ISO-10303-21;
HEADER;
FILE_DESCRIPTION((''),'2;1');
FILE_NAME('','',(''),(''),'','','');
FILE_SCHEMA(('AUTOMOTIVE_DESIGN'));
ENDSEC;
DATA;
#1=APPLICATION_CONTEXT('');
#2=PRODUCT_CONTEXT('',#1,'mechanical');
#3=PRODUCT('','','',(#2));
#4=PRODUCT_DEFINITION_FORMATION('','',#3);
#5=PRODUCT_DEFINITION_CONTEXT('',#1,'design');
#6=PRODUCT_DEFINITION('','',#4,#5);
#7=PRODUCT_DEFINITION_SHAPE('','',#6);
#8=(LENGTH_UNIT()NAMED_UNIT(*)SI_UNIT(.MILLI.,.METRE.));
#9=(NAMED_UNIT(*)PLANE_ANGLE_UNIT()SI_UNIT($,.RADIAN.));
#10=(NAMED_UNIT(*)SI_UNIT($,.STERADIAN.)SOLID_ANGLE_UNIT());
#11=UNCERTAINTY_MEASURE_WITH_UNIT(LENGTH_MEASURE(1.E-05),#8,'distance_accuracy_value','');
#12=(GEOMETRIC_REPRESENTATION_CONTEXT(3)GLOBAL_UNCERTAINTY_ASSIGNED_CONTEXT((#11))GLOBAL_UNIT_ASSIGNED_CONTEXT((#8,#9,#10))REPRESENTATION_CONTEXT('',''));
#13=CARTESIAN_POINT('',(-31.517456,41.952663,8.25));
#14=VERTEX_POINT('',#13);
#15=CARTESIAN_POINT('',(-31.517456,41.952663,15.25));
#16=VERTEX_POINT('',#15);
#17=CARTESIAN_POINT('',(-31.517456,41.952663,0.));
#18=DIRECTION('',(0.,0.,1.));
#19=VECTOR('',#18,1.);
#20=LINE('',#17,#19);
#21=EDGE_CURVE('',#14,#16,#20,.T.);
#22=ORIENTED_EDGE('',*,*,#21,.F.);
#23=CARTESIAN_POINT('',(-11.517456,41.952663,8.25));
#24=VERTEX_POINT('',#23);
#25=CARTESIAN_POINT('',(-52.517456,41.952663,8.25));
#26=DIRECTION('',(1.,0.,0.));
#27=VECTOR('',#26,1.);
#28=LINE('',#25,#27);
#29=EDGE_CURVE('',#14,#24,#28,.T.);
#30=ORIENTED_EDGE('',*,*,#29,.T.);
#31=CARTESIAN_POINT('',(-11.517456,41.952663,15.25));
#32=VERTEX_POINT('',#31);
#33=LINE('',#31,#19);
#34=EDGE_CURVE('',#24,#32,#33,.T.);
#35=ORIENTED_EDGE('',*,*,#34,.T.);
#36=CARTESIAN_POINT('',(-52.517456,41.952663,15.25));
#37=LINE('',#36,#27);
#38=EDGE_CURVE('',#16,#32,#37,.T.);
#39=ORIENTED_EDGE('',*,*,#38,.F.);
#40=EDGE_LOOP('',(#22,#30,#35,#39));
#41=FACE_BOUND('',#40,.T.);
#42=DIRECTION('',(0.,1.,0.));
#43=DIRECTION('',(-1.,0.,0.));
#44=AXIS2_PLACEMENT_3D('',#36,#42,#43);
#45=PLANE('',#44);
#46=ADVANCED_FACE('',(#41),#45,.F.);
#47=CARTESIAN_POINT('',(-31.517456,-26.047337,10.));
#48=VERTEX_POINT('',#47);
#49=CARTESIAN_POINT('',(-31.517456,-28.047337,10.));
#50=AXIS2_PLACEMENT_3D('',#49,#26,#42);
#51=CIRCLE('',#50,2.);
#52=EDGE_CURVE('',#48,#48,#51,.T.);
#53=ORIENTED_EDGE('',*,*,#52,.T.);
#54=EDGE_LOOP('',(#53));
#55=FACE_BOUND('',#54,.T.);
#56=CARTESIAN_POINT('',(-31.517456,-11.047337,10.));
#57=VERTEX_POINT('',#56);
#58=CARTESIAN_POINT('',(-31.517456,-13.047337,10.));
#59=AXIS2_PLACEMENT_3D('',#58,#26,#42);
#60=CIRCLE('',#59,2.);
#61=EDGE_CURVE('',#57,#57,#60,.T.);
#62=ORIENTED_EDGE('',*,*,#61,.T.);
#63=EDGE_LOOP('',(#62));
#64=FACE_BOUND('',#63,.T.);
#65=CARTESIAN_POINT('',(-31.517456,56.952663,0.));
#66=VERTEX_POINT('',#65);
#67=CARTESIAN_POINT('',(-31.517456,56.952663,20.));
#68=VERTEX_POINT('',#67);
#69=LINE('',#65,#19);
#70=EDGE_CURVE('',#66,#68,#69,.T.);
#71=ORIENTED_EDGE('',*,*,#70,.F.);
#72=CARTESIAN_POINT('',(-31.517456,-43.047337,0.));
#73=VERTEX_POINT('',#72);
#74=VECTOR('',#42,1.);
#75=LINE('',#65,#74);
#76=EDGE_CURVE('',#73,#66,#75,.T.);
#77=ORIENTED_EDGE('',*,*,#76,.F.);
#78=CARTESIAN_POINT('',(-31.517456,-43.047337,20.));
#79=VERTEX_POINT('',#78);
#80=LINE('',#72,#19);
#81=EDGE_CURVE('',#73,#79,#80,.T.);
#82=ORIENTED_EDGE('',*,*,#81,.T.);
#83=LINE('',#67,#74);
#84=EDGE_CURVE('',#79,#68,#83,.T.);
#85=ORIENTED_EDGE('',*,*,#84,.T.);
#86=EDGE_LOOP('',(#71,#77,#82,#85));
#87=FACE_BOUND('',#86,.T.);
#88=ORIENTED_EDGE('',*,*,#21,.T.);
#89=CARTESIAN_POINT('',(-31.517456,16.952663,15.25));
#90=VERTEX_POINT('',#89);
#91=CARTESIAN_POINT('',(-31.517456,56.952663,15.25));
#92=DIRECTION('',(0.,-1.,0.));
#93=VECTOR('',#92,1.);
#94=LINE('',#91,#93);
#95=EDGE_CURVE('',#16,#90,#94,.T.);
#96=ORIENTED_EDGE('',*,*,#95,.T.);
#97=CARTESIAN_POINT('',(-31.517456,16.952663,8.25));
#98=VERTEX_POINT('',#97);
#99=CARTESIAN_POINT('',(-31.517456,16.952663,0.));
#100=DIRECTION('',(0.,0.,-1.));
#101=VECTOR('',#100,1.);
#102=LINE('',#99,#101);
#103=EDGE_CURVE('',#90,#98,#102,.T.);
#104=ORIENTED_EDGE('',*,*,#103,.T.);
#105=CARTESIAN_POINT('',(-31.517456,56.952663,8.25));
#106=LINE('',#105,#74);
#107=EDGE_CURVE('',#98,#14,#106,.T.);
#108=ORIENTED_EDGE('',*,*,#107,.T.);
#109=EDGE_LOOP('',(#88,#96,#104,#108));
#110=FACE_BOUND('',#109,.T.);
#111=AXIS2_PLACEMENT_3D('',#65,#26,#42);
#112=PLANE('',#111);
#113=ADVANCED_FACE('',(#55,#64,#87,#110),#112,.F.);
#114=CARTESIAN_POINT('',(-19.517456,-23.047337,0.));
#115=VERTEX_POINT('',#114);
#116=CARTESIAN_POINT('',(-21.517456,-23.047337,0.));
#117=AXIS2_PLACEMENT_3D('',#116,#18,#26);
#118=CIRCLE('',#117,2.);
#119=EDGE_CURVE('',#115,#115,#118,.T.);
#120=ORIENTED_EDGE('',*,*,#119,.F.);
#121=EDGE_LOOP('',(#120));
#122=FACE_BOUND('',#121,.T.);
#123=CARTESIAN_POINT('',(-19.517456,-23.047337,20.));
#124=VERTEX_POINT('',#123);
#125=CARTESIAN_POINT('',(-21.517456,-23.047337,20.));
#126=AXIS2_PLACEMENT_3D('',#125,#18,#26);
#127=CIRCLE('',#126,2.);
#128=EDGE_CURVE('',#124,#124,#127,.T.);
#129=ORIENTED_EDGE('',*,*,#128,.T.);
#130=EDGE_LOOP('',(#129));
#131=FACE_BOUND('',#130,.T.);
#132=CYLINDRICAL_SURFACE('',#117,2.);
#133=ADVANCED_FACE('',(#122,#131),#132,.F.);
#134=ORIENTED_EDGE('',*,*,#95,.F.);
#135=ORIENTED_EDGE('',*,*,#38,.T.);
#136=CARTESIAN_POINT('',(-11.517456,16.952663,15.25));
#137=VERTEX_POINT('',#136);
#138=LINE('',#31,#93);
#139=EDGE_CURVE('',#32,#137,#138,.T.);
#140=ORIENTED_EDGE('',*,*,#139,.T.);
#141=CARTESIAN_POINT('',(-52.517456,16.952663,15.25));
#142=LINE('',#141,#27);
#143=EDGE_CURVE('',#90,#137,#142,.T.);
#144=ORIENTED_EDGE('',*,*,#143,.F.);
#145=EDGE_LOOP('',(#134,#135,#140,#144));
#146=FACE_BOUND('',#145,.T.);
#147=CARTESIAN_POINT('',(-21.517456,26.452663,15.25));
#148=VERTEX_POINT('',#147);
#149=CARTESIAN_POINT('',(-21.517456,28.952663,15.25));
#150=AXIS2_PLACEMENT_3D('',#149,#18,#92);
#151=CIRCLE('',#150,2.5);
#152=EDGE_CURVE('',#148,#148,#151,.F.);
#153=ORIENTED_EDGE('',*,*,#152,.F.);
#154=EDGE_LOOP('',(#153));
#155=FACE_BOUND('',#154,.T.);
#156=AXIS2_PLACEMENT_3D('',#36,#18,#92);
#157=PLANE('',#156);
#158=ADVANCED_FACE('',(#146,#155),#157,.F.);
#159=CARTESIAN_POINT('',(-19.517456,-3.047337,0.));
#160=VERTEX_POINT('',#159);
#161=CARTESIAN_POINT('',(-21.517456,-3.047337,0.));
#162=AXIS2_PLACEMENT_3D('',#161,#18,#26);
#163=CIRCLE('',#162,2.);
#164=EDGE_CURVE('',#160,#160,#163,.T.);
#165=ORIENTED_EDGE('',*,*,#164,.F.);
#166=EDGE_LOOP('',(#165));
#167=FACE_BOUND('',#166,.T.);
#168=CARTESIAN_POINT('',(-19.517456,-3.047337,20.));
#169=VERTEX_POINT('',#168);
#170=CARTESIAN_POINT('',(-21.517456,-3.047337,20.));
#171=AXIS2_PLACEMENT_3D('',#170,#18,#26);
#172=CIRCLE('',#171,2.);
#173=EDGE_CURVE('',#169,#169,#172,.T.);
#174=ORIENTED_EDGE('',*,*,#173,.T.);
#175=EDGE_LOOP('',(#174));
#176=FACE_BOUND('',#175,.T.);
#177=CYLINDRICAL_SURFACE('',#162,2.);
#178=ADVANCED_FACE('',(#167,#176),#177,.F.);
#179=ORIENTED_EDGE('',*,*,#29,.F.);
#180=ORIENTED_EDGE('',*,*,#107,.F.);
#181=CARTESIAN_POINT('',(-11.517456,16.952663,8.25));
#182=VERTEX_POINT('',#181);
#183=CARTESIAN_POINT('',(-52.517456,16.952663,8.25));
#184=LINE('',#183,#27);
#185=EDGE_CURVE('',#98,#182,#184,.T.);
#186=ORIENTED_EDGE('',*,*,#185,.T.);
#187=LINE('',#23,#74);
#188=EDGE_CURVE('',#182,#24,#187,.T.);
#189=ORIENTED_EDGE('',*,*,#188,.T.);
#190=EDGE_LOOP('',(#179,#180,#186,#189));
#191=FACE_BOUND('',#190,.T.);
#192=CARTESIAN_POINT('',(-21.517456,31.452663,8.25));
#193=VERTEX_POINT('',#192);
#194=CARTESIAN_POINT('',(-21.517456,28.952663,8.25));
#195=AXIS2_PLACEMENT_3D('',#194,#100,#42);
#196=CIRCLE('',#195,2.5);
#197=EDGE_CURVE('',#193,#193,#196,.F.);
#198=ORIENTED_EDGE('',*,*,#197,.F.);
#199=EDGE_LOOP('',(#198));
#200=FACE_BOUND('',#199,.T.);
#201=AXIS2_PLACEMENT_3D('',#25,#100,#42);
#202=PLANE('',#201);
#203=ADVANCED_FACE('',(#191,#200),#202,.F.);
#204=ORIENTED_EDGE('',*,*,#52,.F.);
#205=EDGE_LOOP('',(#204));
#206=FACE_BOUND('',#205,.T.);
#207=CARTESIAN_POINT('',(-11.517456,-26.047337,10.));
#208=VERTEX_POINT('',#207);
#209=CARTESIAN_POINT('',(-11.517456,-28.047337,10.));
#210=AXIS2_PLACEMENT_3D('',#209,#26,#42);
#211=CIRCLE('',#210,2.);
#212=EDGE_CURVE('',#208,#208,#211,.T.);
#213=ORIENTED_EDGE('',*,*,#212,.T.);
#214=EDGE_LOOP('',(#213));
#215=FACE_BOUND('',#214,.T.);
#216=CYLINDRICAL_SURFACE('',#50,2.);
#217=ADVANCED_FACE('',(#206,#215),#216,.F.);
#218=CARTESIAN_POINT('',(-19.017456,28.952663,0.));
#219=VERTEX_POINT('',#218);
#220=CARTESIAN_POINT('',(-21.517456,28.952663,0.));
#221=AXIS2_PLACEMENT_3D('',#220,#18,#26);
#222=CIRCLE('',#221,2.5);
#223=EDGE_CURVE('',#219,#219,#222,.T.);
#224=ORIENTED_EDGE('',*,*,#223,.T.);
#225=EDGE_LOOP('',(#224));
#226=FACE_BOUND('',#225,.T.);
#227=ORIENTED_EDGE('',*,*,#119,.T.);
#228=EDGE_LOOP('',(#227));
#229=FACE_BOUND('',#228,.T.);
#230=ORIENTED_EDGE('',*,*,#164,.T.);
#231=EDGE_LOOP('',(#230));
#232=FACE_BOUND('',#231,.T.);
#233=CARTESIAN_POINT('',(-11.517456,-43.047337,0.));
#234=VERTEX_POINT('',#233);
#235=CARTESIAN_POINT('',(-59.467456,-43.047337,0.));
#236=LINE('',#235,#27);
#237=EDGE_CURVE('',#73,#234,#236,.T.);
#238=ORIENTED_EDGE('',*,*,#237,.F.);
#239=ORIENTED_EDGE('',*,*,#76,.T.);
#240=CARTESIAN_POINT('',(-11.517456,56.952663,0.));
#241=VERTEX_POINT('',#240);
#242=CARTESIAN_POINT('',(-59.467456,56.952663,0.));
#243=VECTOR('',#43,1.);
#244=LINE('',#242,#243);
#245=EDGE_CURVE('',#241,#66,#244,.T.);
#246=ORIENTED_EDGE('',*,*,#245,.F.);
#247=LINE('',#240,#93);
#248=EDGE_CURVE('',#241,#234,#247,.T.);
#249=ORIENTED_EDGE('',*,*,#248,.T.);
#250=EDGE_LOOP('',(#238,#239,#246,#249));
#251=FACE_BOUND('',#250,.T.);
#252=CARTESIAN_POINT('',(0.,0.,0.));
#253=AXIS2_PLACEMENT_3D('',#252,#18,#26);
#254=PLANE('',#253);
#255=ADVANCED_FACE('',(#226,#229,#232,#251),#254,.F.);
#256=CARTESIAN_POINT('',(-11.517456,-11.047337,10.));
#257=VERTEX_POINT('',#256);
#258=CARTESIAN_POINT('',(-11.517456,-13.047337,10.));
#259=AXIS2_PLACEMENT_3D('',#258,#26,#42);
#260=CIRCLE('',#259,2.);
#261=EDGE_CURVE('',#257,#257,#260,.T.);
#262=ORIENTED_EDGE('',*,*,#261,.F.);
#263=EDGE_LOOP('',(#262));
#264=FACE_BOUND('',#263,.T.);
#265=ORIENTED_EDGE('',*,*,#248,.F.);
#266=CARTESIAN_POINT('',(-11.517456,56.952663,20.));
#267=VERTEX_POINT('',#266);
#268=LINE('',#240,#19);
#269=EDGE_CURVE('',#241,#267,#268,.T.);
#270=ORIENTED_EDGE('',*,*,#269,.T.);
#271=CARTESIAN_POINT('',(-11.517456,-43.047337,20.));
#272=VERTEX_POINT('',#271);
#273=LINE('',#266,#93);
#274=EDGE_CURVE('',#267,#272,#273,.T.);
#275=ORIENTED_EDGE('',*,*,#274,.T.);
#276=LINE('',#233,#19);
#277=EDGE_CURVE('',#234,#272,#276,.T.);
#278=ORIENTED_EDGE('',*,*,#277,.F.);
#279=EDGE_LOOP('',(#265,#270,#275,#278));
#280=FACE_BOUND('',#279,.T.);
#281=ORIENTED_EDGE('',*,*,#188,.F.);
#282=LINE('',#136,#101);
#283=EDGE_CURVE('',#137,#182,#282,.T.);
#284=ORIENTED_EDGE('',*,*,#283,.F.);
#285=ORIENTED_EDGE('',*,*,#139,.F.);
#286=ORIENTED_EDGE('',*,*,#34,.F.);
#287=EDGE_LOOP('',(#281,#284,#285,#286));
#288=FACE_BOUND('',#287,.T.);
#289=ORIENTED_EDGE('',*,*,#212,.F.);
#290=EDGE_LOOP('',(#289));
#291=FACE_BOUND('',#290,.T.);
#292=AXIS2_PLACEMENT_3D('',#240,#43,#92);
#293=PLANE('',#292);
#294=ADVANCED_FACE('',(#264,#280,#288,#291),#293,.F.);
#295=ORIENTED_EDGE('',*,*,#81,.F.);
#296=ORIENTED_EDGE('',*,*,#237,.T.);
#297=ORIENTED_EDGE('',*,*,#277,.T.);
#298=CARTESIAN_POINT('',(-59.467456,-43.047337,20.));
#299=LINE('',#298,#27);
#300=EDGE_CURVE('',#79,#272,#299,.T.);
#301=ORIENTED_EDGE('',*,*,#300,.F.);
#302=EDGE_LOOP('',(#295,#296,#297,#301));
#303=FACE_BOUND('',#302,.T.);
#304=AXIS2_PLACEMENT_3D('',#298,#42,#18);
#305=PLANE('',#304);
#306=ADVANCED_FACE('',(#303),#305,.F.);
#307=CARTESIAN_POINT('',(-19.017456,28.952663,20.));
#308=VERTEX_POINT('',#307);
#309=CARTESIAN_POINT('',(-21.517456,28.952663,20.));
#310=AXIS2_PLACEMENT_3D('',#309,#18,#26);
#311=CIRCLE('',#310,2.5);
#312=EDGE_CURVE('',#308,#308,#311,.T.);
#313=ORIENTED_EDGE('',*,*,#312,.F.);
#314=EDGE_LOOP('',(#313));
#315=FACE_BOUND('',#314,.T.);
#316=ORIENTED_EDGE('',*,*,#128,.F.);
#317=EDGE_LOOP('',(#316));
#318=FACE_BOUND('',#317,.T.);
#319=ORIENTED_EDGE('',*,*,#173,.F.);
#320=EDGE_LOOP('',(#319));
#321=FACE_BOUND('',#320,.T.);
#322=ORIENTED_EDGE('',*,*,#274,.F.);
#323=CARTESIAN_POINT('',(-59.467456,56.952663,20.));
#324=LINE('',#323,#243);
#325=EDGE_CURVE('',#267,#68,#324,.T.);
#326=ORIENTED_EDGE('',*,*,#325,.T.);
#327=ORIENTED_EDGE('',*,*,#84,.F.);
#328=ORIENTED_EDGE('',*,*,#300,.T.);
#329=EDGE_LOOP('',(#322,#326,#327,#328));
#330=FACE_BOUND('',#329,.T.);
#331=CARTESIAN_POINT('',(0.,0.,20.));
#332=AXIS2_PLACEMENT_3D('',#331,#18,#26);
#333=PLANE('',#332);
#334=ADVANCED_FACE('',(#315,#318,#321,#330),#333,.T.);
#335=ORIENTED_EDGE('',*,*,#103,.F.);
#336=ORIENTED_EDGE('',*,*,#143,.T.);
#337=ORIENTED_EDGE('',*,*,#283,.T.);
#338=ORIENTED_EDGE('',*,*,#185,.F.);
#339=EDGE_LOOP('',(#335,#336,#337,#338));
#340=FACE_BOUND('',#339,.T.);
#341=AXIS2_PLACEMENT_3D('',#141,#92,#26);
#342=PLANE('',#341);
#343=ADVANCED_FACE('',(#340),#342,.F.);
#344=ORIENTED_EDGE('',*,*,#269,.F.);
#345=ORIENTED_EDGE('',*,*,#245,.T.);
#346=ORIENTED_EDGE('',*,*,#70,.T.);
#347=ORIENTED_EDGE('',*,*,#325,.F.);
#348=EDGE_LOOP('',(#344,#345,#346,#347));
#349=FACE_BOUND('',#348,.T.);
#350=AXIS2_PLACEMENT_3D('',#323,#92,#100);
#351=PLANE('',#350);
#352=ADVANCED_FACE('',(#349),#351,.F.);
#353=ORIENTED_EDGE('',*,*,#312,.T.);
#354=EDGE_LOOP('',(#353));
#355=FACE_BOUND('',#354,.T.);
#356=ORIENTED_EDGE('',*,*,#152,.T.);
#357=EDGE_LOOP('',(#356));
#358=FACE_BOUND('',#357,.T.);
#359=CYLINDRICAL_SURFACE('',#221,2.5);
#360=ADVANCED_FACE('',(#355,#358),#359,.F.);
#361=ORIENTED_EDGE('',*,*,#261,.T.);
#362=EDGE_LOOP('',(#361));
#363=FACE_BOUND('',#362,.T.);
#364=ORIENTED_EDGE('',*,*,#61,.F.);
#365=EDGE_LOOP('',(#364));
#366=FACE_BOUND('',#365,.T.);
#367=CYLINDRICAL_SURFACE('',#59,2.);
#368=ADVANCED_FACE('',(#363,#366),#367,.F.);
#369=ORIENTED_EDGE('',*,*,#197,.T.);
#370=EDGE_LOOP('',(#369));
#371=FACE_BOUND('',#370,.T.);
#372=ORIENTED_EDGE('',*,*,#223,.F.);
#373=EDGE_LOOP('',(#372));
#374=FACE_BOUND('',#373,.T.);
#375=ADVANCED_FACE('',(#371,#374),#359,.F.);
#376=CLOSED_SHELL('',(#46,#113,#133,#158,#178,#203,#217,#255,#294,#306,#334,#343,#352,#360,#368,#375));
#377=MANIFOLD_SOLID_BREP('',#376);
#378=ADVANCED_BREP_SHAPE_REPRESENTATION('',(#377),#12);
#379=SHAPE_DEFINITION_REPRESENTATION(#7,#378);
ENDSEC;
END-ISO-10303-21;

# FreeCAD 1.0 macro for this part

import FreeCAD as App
import Part
import Sketcher
Q = App.Units.Quantity

doc = App.newDocument("Part")
body = doc.addObject("PartDesign::Body", "Body")

sketch1 = body.newObject("Sketcher::SketchObject", "Sketch")
sketch1.AttachmentSupport = (doc.getObject("XY_Plane"), [""])
sketch1.MapMode = "FlatFace"
sketch1.addGeometry([
    Part.LineSegment(App.Vector(-59, 57, 0), App.Vector(-59, -43, 0)),
    Part.LineSegment(App.Vector(-59, -43, 0), App.Vector(16, -43, 0)),
    Part.LineSegment(App.Vector(16, -43, 0), App.Vector(16, 57, 0)),
    Part.LineSegment(App.Vector(16, 57, 0), App.Vector(-59, 57, 0)),
], False)
sketch1.addConstraint([
    Sketcher.Constraint("Coincident", 0, 2, 1, 1),
    Sketcher.Constraint("Coincident", 1, 2, 2, 1),
    Sketcher.Constraint("Coincident", 2, 2, 3, 1),
    Sketcher.Constraint("Coincident", 3, 2, 0, 1),
    Sketcher.Constraint("Vertical", 0),
    Sketcher.Constraint("Horizontal", 1),
    Sketcher.Constraint("Vertical", 2),
    Sketcher.Constraint("Horizontal", 3),
    Sketcher.Constraint("DistanceY", 0, 2, 0, 1, Q("100 mm")),
    Sketcher.Constraint("DistanceX", 1, 1, 1, 2, Q("75.9 mm")),
    Sketcher.Constraint("DistanceX", 0, 2, -1, 1, Q("59.467456 mm")),
    Sketcher.Constraint("DistanceY", 0, 2, -1, 1, Q("43.047337 mm")),
])
pad1 = body.newObject("PartDesign::Pad", "Pad")
pad1.Profile = sketch1
pad1.Length = 20

sketch2 = body.newObject("Sketcher::SketchObject", "Sketch001")
sketch2.AttachmentSupport = (doc.getObject("XY_Plane"), [""])
sketch2.MapMode = "FlatFace"
sketch2.AttachmentOffset = App.Placement(App.Vector(0, 0, 20), App.Rotation())
sketch2.addGeometry(Part.Circle(App.Vector(-21.5, 29, 0), App.Vector(0, 0, 1), 2.5), False)
sketch2.addConstraint([
    Sketcher.Constraint("Diameter", 0, Q("5 mm")),
    Sketcher.Constraint("DistanceX", 0, 3, -1, 1, Q("21.517456 mm")),
    Sketcher.Constraint("DistanceY", -1, 1, 0, 3, Q("28.952663 mm")),
])
pocket1 = body.newObject("PartDesign::Pocket", "Pocket")
pocket1.Profile = sketch2
pocket1.Type = "ThroughAll"

sketch3 = body.newObject("Sketcher::SketchObject", "Sketch002")
sketch3.AttachmentSupport = (doc.getObject("XY_Plane"), [""])
sketch3.MapMode = "FlatFace"
sketch3.AttachmentOffset = App.Placement(App.Vector(0, 0, 20), App.Rotation())
sketch3.addGeometry([
    Part.LineSegment(App.Vector(-59, 57, 0), App.Vector(-59, -43, 0)),
    Part.LineSegment(App.Vector(-59, -43, 0), App.Vector(-32, -43, 0)),
    Part.LineSegment(App.Vector(-32, -43, 0), App.Vector(-32, 57, 0)),
    Part.LineSegment(App.Vector(-32, 57, 0), App.Vector(-59, 57, 0)),
    Part.LineSegment(App.Vector(-12, 57, 0), App.Vector(-12, -43, 0)),
    Part.LineSegment(App.Vector(-12, -43, 0), App.Vector(16, -43, 0)),
    Part.LineSegment(App.Vector(16, -43, 0), App.Vector(16, 57, 0)),
    Part.LineSegment(App.Vector(16, 57, 0), App.Vector(-12, 57, 0)),
], False)
sketch3.addConstraint([
    Sketcher.Constraint("Coincident", 0, 2, 1, 1),
    Sketcher.Constraint("Coincident", 1, 2, 2, 1),
    Sketcher.Constraint("Coincident", 2, 2, 3, 1),
    Sketcher.Constraint("Coincident", 3, 2, 0, 1),
    Sketcher.Constraint("Coincident", 4, 2, 5, 1),
    Sketcher.Constraint("Coincident", 5, 2, 6, 1),
    Sketcher.Constraint("Coincident", 6, 2, 7, 1),
    Sketcher.Constraint("Coincident", 7, 2, 4, 1),
    Sketcher.Constraint("Vertical", 0),
    Sketcher.Constraint("Horizontal", 1),
    Sketcher.Constraint("Vertical", 2),
    Sketcher.Constraint("Horizontal", 3),
    Sketcher.Constraint("Vertical", 4),
    Sketcher.Constraint("Horizontal", 5),
    Sketcher.Constraint("Vertical", 6),
    Sketcher.Constraint("Horizontal", 7),
    Sketcher.Constraint("Horizontal", 1, 2, 4, 2),
    Sketcher.Constraint("Horizontal", 3, 2, 6, 2),
    Sketcher.Constraint("Equal", 3, 5),
    Sketcher.Constraint("DistanceY", 0, 2, 0, 1, Q("100 mm")),
    Sketcher.Constraint("DistanceX", 1, 2, 4, 2, Q("20 mm")),
    Sketcher.Constraint("DistanceX", 1, 1, 1, 2, Q("27.95 mm")),
    Sketcher.Constraint("DistanceX", 0, 2, -1, 1, Q("59.467456 mm")),
    Sketcher.Constraint("DistanceY", 0, 2, -1, 1, Q("43.047337 mm")),
])
pocket2 = body.newObject("PartDesign::Pocket", "Pocket001")
pocket2.Profile = sketch3
pocket2.Type = "ThroughAll"

sketch4 = body.newObject("Sketcher::SketchObject", "Sketch003")
sketch4.AttachmentSupport = (doc.getObject("YZ_Plane"), [""])
sketch4.MapMode = "FlatFace"
sketch4.AttachmentOffset = App.Placement(App.Vector(0, 0, -11.517456), App.Rotation())
sketch4.addGeometry([
    Part.LineSegment(App.Vector(42, 15, 0), App.Vector(17, 15, 0)),
    Part.LineSegment(App.Vector(17, 15, 0), App.Vector(17, 8, 0)),
    Part.LineSegment(App.Vector(17, 8, 0), App.Vector(42, 8, 0)),
    Part.LineSegment(App.Vector(42, 8, 0), App.Vector(42, 15, 0)),
], False)
sketch4.addConstraint([
    Sketcher.Constraint("Coincident", 0, 2, 1, 1),
    Sketcher.Constraint("Coincident", 1, 2, 2, 1),
    Sketcher.Constraint("Coincident", 2, 2, 3, 1),
    Sketcher.Constraint("Coincident", 3, 2, 0, 1),
    Sketcher.Constraint("Horizontal", 0),
    Sketcher.Constraint("Vertical", 1),
    Sketcher.Constraint("Horizontal", 2),
    Sketcher.Constraint("Vertical", 3),
    Sketcher.Constraint("DistanceX", 0, 2, 0, 1, Q("25 mm")),
    Sketcher.Constraint("DistanceY", 1, 2, 1, 1, Q("7 mm")),
    Sketcher.Constraint("DistanceY", -1, 1, 0, 2, Q("15.25 mm")),
    Sketcher.Constraint("DistanceX", -1, 1, 0, 2, Q("16.952663 mm")),
])
pocket3 = body.newObject("PartDesign::Pocket", "Pocket002")
pocket3.Profile = sketch4
pocket3.Length = 41

sketch5 = body.newObject("Sketcher::SketchObject", "Sketch004")
sketch5.AttachmentSupport = (doc.getObject("XY_Plane"), [""])
sketch5.MapMode = "FlatFace"
sketch5.AttachmentOffset = App.Placement(App.Vector(0, 0, 20), App.Rotation())
sketch5.addGeometry([
    Part.Circle(App.Vector(-21.5, -3, 0), App.Vector(0, 0, 1), 2),
    Part.Circle(App.Vector(-21.5, -23, 0), App.Vector(0, 0, 1), 2),
], False)
sketch5.addConstraint([
    Sketcher.Constraint("Equal", 0, 1),
    Sketcher.Constraint("Vertical", 0, 3, 1, 3),
    Sketcher.Constraint("Diameter", 0, Q("4 mm")),
    Sketcher.Constraint("DistanceY", 1, 3, 0, 3, Q("20 mm")),
    Sketcher.Constraint("DistanceX", 0, 3, -1, 1, Q("21.517456 mm")),
    Sketcher.Constraint("DistanceY", 0, 3, -1, 1, Q("3.047337 mm")),
])
pocket4 = body.newObject("PartDesign::Pocket", "Pocket003")
pocket4.Profile = sketch5
pocket4.Type = "ThroughAll"

sketch6 = body.newObject("Sketcher::SketchObject", "Sketch005")
sketch6.AttachmentSupport = (doc.getObject("YZ_Plane"), [""])
sketch6.MapMode = "FlatFace"
sketch6.AttachmentOffset = App.Placement(App.Vector(0, 0, -11.517456), App.Rotation())
sketch6.addGeometry([
    Part.Circle(App.Vector(-13, 10, 0), App.Vector(0, 0, 1), 2),
    Part.Circle(App.Vector(-28, 10, 0), App.Vector(0, 0, 1), 2),
], False)
sketch6.addConstraint([
    Sketcher.Constraint("Equal", 0, 1),
    Sketcher.Constraint("Horizontal", 0, 3, 1, 3),
    Sketcher.Constraint("Diameter", 0, Q("4 mm")),
    Sketcher.Constraint("DistanceY", -1, 1, 0, 3, Q("10 mm")),
    Sketcher.Constraint("DistanceX", 1, 3, 0, 3, Q("15 mm")),
    Sketcher.Constraint("DistanceX", 0, 3, -1, 1, Q("13.047337 mm")),
])
pocket5 = body.newObject("PartDesign::Pocket", "Pocket004")
pocket5.Profile = sketch6
pocket5.Type = "ThroughAll"

doc.recompute()
